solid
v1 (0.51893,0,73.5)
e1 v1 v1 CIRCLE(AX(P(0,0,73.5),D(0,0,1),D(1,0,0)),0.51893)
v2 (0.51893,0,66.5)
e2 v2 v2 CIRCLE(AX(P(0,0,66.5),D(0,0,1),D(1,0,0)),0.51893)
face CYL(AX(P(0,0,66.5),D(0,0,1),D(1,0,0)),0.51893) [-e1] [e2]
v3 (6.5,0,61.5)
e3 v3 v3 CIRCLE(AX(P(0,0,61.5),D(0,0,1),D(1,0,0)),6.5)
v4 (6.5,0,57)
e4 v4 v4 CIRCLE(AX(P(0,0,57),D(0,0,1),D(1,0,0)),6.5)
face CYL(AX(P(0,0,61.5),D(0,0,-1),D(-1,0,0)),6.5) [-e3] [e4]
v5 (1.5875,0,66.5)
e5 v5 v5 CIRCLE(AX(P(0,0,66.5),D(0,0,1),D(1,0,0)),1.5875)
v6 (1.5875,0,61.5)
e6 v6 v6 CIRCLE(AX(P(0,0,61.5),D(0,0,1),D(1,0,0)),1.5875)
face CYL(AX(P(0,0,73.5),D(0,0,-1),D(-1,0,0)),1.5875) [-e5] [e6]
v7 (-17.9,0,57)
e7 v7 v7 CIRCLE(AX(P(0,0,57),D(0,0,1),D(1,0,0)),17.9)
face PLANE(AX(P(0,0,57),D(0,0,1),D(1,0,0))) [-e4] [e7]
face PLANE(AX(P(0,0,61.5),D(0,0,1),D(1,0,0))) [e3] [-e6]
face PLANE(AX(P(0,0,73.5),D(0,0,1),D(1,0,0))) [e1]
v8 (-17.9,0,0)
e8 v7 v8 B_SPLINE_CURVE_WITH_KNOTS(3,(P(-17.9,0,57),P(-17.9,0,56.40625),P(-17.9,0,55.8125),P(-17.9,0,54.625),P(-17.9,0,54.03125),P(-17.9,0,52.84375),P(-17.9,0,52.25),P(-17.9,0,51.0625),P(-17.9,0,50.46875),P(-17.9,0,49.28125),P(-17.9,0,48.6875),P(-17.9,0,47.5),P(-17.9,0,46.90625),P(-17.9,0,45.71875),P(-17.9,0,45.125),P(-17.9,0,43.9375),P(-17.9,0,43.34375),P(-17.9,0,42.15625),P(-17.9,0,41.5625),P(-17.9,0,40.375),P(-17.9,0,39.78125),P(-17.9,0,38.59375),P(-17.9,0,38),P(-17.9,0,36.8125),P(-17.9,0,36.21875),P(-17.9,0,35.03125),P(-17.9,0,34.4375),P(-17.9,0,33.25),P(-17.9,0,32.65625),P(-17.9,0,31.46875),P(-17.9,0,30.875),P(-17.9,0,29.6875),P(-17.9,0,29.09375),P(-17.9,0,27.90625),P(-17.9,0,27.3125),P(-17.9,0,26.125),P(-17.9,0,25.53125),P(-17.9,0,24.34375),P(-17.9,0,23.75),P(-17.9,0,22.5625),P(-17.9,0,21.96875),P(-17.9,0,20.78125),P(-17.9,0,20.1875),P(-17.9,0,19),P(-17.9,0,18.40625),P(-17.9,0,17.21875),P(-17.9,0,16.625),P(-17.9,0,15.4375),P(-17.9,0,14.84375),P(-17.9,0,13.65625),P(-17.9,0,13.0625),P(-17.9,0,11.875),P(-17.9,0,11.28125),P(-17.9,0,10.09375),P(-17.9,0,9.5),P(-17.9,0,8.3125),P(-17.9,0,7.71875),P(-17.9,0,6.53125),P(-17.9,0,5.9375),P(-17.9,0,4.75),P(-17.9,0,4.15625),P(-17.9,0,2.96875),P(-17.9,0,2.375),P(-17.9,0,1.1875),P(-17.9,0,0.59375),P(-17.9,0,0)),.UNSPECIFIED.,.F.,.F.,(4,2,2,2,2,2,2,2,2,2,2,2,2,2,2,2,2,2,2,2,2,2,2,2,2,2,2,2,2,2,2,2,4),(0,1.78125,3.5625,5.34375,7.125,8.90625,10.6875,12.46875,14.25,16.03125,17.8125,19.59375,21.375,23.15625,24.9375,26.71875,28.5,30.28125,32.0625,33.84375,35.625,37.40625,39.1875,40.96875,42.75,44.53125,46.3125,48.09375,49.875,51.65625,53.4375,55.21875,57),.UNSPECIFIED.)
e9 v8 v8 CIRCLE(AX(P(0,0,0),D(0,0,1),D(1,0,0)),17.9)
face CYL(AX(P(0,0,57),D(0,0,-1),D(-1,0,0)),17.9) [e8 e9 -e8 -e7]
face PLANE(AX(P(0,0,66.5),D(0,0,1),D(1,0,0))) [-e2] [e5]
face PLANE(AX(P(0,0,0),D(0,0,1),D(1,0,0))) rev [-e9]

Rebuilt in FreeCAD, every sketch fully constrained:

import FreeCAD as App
import Part
import Sketcher

V = App.Vector
Q = App.Units.Quantity

doc = App.newDocument("Part")
body = doc.addObject("PartDesign::Body", "Body")

sketch1 = body.newObject("Sketcher::SketchObject", "Sketch")
sketch1.AttachmentSupport = (doc.getObject("XY_Plane"), [""])
sketch1.MapMode = "FlatFace"
sketch1.addGeometry(Part.Circle(V(0, 0, 0), V(0, 0, 1), 17.9), False)
sketch1.addConstraint(Sketcher.Constraint("Coincident", 0, 3, -1, 1))
sketch1.addConstraint(Sketcher.Constraint("Diameter", 0, Q("35.8 mm")))
pad1 = body.newObject("PartDesign::Pad", "Pad")
pad1.Profile = sketch1
pad1.Length = 57

sketch2 = body.newObject("Sketcher::SketchObject", "Sketch001")
sketch2.AttachmentSupport = (doc.getObject("XY_Plane"), [""])
sketch2.MapMode = "FlatFace"
sketch2.AttachmentOffset = App.Placement(V(0, 0, 57), App.Rotation())
sketch2.addGeometry(Part.Circle(V(0, 0, 0), V(0, 0, 1), 6.5), False)
sketch2.addConstraint(Sketcher.Constraint("Coincident", 0, 3, -1, 1))
sketch2.addConstraint(Sketcher.Constraint("Diameter", 0, Q("13 mm")))
pad2 = body.newObject("PartDesign::Pad", "Pad001")
pad2.Profile = sketch2
pad2.Length = 4.5

sketch3 = body.newObject("Sketcher::SketchObject", "Sketch002")
sketch3.AttachmentSupport = (doc.getObject("XY_Plane"), [""])
sketch3.MapMode = "FlatFace"
sketch3.AttachmentOffset = App.Placement(V(0, 0, 61.5), App.Rotation())
sketch3.addGeometry(Part.Circle(V(0, 0, 0), V(0, 0, 1), 1.5875), False)
sketch3.addConstraint(Sketcher.Constraint("Coincident", 0, 3, -1, 1))
sketch3.addConstraint(Sketcher.Constraint("Diameter", 0, Q("3.175 mm")))
pad3 = body.newObject("PartDesign::Pad", "Pad002")
pad3.Profile = sketch3
pad3.Length = 12

sketch4 = body.newObject("Sketcher::SketchObject", "Sketch003")
sketch4.AttachmentSupport = (doc.getObject("XY_Plane"), [""])
sketch4.MapMode = "FlatFace"
sketch4.AttachmentOffset = App.Placement(V(0, 0, 66.5), App.Rotation())
sketch4.addGeometry(Part.Circle(V(0, 0, 0), V(0, 0, 1), 1.5875), False)
sketch4.addGeometry(Part.Circle(V(0, 0, 0), V(0, 0, 1), 0.51893), False)
sketch4.addConstraint(Sketcher.Constraint("Coincident", 0, 3, -1, 1))
sketch4.addConstraint(Sketcher.Constraint("Coincident", 1, 3, -1, 1))
sketch4.addConstraint(Sketcher.Constraint("Diameter", 0, Q("3.175 mm")))
sketch4.addConstraint(Sketcher.Constraint("Diameter", 1, Q("1.037861 mm")))
pocket1 = body.newObject("PartDesign::Pocket", "Pocket")
pocket1.Profile = sketch4
pocket1.Length = 7
pocket1.Reversed = True

doc.recompute()
